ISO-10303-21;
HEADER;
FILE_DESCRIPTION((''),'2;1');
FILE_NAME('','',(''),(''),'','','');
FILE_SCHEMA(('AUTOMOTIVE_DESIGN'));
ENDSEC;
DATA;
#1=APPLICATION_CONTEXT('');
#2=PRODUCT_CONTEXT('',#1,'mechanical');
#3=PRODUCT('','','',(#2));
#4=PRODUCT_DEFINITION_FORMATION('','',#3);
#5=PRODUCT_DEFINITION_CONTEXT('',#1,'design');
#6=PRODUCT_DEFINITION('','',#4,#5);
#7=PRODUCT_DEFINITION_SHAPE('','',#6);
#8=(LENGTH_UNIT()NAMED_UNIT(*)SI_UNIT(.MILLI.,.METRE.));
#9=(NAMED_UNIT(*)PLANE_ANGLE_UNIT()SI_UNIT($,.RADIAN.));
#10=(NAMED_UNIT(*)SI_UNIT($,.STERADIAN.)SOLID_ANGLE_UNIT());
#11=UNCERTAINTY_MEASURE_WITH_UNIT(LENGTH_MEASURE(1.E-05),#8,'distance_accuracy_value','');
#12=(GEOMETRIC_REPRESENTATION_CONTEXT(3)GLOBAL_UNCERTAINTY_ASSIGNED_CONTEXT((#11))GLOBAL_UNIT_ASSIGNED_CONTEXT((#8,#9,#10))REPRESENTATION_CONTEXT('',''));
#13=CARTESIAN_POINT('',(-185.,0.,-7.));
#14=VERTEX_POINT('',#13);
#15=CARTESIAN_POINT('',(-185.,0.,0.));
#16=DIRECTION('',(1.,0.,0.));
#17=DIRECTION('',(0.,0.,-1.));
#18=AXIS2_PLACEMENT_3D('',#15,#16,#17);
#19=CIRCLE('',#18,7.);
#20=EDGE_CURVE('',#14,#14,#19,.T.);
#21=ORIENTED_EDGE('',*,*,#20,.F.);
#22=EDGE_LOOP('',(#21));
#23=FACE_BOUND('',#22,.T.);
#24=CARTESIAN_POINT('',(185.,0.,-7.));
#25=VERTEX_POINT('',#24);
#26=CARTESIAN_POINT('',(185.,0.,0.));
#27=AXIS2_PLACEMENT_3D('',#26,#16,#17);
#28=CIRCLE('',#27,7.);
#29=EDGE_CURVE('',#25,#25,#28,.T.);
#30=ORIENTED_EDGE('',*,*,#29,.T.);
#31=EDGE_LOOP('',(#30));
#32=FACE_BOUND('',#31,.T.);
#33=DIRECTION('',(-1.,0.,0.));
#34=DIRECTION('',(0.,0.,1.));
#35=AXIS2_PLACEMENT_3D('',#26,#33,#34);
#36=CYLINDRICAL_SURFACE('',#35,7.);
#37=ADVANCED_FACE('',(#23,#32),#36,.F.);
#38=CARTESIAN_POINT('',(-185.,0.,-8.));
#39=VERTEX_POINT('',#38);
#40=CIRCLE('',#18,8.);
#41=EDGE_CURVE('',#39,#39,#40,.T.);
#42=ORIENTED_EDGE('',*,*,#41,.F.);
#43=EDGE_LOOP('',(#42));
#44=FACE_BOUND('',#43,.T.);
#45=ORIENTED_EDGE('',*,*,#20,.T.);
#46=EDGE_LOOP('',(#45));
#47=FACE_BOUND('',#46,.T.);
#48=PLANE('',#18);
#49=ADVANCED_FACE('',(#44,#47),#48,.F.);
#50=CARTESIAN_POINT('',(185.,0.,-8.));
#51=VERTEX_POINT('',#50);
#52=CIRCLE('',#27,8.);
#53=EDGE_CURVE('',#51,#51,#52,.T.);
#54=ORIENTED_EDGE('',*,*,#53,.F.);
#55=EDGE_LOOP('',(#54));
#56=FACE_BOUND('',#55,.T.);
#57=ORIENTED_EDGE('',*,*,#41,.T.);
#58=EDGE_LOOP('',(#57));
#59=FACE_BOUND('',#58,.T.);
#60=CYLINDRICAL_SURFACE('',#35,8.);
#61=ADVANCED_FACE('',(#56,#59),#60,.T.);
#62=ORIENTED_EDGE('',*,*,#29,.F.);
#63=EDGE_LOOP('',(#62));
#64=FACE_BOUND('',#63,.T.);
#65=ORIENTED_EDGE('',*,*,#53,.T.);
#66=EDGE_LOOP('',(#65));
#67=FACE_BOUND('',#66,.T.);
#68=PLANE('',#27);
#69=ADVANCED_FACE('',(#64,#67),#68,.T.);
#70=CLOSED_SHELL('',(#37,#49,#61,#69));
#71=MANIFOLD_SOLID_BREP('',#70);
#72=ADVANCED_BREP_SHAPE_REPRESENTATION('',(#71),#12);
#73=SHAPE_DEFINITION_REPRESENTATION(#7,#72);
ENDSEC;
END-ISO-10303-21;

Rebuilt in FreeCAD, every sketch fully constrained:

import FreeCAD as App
import Part
import Sketcher

doc = App.newDocument("Part")
body = doc.addObject("PartDesign::Body", "Body")

# Sketch on YZ plane
sketch1 = body.newObject("Sketcher::SketchObject", "Sketch")
sketch1.AttachmentSupport = (doc.getObject("YZ_Plane"), [""])
sketch1.MapMode = "FlatFace"
sketch1.addGeometry(Part.Circle(App.Vector(0, 0, 0), App.Vector(0, 0, 1), 8), False)
sketch1.addGeometry(Part.Circle(App.Vector(0, 0, 0), App.Vector(0, 0, 1), 7), False)
sketch1.addConstraint(Sketcher.Constraint("Coincident", 0, 3, -1, 1))
sketch1.addConstraint(Sketcher.Constraint("Coincident", 1, 3, -1, 1))
sketch1.addConstraint(Sketcher.Constraint("Diameter", 0, 16.0))
sketch1.addConstraint(Sketcher.Constraint("Diameter", 1, 14.0))
pad1 = body.newObject("PartDesign::Pad", "Pad")
pad1.Profile = sketch1
pad1.Length = 370
pad1.Midplane = True

doc.recompute()
